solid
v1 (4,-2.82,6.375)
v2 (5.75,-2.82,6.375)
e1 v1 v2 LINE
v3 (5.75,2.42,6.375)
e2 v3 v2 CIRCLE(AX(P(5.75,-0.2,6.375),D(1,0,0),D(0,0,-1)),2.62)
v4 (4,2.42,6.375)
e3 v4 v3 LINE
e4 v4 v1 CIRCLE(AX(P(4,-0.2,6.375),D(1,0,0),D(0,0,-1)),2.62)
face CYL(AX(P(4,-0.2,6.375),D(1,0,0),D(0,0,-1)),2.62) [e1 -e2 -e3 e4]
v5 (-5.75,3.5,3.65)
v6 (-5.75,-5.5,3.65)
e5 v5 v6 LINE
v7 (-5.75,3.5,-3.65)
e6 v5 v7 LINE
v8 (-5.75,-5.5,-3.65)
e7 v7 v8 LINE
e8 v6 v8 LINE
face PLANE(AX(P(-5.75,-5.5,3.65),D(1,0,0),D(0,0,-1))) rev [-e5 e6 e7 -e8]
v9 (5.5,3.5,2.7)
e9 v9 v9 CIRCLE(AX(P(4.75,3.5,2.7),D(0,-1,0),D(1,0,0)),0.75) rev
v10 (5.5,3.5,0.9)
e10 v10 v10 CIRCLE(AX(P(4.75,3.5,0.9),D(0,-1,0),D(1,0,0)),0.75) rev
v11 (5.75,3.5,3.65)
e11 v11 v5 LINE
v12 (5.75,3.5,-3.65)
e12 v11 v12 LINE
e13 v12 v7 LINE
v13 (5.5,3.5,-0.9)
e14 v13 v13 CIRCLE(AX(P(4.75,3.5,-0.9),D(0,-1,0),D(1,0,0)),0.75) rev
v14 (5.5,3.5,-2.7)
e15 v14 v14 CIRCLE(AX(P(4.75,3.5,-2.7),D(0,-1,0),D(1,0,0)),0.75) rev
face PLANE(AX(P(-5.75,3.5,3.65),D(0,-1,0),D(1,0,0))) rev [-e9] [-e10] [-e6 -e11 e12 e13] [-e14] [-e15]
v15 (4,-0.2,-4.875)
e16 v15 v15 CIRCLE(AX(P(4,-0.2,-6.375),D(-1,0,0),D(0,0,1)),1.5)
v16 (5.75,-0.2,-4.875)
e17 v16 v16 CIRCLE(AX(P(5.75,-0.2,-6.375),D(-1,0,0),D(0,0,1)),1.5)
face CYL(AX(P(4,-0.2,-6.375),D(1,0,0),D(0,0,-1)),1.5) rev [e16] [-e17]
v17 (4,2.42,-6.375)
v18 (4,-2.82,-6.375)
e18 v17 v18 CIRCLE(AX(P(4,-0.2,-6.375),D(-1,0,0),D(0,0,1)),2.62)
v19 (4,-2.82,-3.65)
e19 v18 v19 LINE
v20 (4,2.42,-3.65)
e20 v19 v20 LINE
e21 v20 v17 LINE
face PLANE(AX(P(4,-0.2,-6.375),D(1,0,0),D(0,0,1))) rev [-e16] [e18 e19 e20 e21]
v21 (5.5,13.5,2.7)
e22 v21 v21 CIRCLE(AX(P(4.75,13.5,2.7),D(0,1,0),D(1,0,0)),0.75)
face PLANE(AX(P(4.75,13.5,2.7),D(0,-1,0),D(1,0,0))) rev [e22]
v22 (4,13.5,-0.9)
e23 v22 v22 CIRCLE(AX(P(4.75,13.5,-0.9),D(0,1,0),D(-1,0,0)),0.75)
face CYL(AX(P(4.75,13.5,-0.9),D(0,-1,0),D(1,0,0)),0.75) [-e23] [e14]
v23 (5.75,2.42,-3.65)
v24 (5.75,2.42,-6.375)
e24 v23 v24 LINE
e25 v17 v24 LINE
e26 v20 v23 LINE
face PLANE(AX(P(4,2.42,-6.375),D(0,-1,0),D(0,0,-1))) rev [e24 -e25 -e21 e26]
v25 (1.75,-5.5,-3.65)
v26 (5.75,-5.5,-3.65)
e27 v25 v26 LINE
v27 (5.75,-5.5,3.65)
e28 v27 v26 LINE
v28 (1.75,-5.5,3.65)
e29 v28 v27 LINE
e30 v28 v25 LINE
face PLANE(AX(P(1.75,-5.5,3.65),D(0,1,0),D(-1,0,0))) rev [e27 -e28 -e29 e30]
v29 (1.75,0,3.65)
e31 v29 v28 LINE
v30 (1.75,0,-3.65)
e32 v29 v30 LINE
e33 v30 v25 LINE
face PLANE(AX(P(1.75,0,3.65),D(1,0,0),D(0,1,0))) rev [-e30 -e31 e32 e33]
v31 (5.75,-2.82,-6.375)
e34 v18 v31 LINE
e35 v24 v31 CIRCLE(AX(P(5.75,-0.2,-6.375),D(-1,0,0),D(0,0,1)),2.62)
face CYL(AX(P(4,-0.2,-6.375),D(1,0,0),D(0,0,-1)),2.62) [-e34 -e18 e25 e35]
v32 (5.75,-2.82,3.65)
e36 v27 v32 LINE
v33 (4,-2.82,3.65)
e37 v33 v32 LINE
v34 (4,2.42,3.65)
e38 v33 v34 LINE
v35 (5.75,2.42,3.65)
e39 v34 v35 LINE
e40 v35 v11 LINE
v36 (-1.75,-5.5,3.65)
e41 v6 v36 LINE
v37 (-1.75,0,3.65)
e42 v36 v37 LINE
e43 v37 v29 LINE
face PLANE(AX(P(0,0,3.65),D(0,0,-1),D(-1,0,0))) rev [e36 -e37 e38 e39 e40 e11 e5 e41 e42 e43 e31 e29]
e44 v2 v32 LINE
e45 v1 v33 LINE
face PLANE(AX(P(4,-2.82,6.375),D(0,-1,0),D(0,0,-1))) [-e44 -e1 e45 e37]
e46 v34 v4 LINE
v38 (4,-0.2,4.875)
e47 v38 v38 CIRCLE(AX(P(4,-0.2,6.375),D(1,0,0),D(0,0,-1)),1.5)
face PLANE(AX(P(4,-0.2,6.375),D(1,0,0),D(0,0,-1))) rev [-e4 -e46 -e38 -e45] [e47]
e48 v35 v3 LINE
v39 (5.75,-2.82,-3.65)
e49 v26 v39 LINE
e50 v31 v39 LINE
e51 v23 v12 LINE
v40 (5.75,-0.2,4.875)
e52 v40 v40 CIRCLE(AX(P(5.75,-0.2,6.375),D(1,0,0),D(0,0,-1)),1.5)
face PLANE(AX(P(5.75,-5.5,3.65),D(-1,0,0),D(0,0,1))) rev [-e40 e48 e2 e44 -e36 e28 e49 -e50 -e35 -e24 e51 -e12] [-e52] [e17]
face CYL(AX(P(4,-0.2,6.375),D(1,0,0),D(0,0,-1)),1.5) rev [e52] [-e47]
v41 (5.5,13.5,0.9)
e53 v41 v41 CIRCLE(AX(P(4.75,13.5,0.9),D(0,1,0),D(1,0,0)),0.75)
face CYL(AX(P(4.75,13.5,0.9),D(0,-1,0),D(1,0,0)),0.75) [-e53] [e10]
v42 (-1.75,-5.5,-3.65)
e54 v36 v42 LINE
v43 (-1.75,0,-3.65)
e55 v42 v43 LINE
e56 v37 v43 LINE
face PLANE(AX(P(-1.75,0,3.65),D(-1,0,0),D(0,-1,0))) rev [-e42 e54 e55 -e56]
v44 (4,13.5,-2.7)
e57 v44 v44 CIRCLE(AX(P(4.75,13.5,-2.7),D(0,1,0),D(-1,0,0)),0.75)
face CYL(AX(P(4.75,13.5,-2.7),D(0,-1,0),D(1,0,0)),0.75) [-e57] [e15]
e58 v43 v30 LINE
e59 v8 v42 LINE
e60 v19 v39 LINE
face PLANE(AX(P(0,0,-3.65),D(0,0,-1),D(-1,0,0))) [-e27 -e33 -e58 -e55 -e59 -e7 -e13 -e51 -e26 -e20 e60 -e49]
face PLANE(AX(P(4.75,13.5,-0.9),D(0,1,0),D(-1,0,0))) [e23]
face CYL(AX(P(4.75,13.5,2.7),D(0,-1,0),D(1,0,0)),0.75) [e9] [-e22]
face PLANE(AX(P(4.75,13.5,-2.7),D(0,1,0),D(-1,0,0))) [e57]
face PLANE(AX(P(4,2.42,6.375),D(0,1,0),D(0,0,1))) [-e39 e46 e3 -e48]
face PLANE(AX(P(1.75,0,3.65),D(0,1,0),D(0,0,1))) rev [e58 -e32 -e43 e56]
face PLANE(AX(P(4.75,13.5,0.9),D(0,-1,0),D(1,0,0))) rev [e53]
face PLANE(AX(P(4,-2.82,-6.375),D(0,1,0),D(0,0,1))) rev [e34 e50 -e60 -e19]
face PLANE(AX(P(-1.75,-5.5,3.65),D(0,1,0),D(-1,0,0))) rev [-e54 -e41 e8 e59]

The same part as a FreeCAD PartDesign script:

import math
import FreeCAD as App
import Part
import Sketcher
Q = App.Units.Quantity

doc = App.newDocument("Part")
body = doc.addObject("PartDesign::Body", "Body")

# Sketch on XY plane
sketch1 = body.newObject("Sketcher::SketchObject", "Sketch")
sketch1.AttachmentSupport = (doc.getObject("XY_Plane"), [""])
sketch1.MapMode = "FlatFace"
sketch1.addGeometry(Part.LineSegment(App.Vector(-1.8, 0, 0), App.Vector(1.8, 0, 0)), False)
sketch1.addGeometry(Part.LineSegment(App.Vector(1.8, 0, 0), App.Vector(1.8, -5.5, 0)), False)
sketch1.addGeometry(Part.LineSegment(App.Vector(1.8, -5.5, 0), App.Vector(5.8, -5.5, 0)), False)
sketch1.addGeometry(Part.LineSegment(App.Vector(5.8, -5.5, 0), App.Vector(5.8, 3.5, 0)), False)
sketch1.addGeometry(Part.LineSegment(App.Vector(5.8, 3.5, 0), App.Vector(-5.8, 3.5, 0)), False)
sketch1.addGeometry(Part.LineSegment(App.Vector(-5.8, 3.5, 0), App.Vector(-5.8, -5.5, 0)), False)
sketch1.addGeometry(Part.LineSegment(App.Vector(-5.8, -5.5, 0), App.Vector(-1.8, -5.5, 0)), False)
sketch1.addGeometry(Part.LineSegment(App.Vector(-1.8, -5.5, 0), App.Vector(-1.8, 0, 0)), False)
sketch1.addConstraint(Sketcher.Constraint("Coincident", 0, 2, 1, 1))
sketch1.addConstraint(Sketcher.Constraint("Coincident", 1, 2, 2, 1))
sketch1.addConstraint(Sketcher.Constraint("Coincident", 2, 2, 3, 1))
sketch1.addConstraint(Sketcher.Constraint("Coincident", 3, 2, 4, 1))
sketch1.addConstraint(Sketcher.Constraint("Coincident", 4, 2, 5, 1))
sketch1.addConstraint(Sketcher.Constraint("Coincident", 5, 2, 6, 1))
sketch1.addConstraint(Sketcher.Constraint("Coincident", 6, 2, 7, 1))
sketch1.addConstraint(Sketcher.Constraint("Coincident", 7, 2, 0, 1))
sketch1.addConstraint(Sketcher.Constraint("Horizontal", 0))
sketch1.addConstraint(Sketcher.Constraint("Vertical", 1))
sketch1.addConstraint(Sketcher.Constraint("Horizontal", 2))
sketch1.addConstraint(Sketcher.Constraint("Vertical", 3))
sketch1.addConstraint(Sketcher.Constraint("Horizontal", 4))
sketch1.addConstraint(Sketcher.Constraint("Vertical", 5))
sketch1.addConstraint(Sketcher.Constraint("Horizontal", 6))
sketch1.addConstraint(Sketcher.Constraint("Vertical", 7))
sketch1.addConstraint(Sketcher.Constraint("Symmetric", 0, 2, 7, 2, -1, 1))
sketch1.addConstraint(Sketcher.Constraint("Symmetric", 2, 2, 5, 2, -2))
sketch1.addConstraint(Sketcher.Constraint("DistanceX", 2, 1, 2, 2, Q("4 mm")))
sketch1.addConstraint(Sketcher.Constraint("DistanceY", 3, 1, 3, 2, Q("9 mm")))
sketch1.addConstraint(Sketcher.Constraint("DistanceX", 0, 1, 0, 2, Q("3.5 mm")))
sketch1.addConstraint(Sketcher.Constraint("DistanceY", 1, 2, 1, 1, Q("5.5 mm")))
pad1 = body.newObject("PartDesign::Pad", "Pad")
pad1.Profile = sketch1
pad1.Length = 7.3
pad1.Midplane = True

# Sketch on YZ plane
sketch2 = body.newObject("Sketcher::SketchObject", "Sketch001")
sketch2.AttachmentSupport = (doc.getObject("YZ_Plane"), [""])
sketch2.MapMode = "FlatFace"
sketch2.AttachmentOffset = App.Placement(App.Vector(0, 0, 5.75), App.Rotation())
sketch2.addGeometry(Part.LineSegment(App.Vector(2.4, 3.6, 0), App.Vector(2.4, 6.4, 0)), False)
sketch2.addGeometry(Part.ArcOfCircle(Part.Circle(App.Vector(-0.2, 6.4, 0), App.Vector(0, 0, 1), 2.6), math.radians(0), math.radians(180)), False)
sketch2.addGeometry(Part.LineSegment(App.Vector(-2.8, 6.4, 0), App.Vector(-2.8, 3.6, 0)), False)
sketch2.addGeometry(Part.LineSegment(App.Vector(-2.8, 3.6, 0), App.Vector(2.4, 3.6, 0)), False)
sketch2.addGeometry(Part.Circle(App.Vector(-0.2, 6.4, 0), App.Vector(0, 0, 1), 1.5), False)
sketch2.addConstraint(Sketcher.Constraint("Tangent", 0, 2, 1, 1))
sketch2.addConstraint(Sketcher.Constraint("Tangent", 1, 2, 2, 1))
sketch2.addConstraint(Sketcher.Constraint("Coincident", 2, 2, 3, 1))
sketch2.addConstraint(Sketcher.Constraint("Coincident", 3, 2, 0, 1))
sketch2.addConstraint(Sketcher.Constraint("Vertical", 0))
sketch2.addConstraint(Sketcher.Constraint("Vertical", 2))
sketch2.addConstraint(Sketcher.Constraint("Horizontal", 3))
sketch2.addConstraint(Sketcher.Constraint("Coincident", 4, 3, 1, 3))
sketch2.addConstraint(Sketcher.Constraint("Diameter", 4, Q("3 mm")))
sketch2.addConstraint(Sketcher.Constraint("Radius", 1, Q("2.62 mm")))
sketch2.addConstraint(Sketcher.Constraint("DistanceX", 1, 3, -1, 1, Q("0.2 mm")))
sketch2.addConstraint(Sketcher.Constraint("DistanceY", 0, 1, 0, 2, Q("2.725 mm")))
sketch2.addConstraint(Sketcher.Constraint("DistanceY", -1, 1, 2, 2, Q("3.65 mm")))
pad2 = body.newObject("PartDesign::Pad", "Pad001")
pad2.Profile = sketch2
pad2.Length = 1.75
pad2.Reversed = True
doc.recompute()

mirrored = body.newObject("PartDesign::Mirrored", "Mirrored")
mirrored.Originals = [pad2]
mirrored.MirrorPlane = (doc.getObject("XY_Plane"), [""])
body.Tip = mirrored

# Sketch on XZ plane
sketch3 = body.newObject("Sketcher::SketchObject", "Sketch002")
sketch3.AttachmentSupport = (doc.getObject("XZ_Plane"), [""])
sketch3.MapMode = "FlatFace"
sketch3.AttachmentOffset = App.Placement(App.Vector(0, 0, -3.5), App.Rotation())
sketch3.addGeometry(Part.Circle(App.Vector(4.8, -2.7, 0), App.Vector(0, 0, 1), 0.8), False)
sketch3.addGeometry(Part.Circle(App.Vector(4.8, -0.9, 0), App.Vector(0, 0, 1), 0.8), False)
sketch3.addGeometry(Part.Circle(App.Vector(4.8, 0.9, 0), App.Vector(0, 0, 1), 0.8), False)
sketch3.addGeometry(Part.Circle(App.Vector(4.8, 2.7, 0), App.Vector(0, 0, 1), 0.8), False)
sketch3.addConstraint(Sketcher.Constraint("Equal", 0, 1))
sketch3.addConstraint(Sketcher.Constraint("Equal", 1, 2))
sketch3.addConstraint(Sketcher.Constraint("Equal", 2, 3))
sketch3.addConstraint(Sketcher.Constraint("Symmetric", 1, 3, 2, 3, -1))
sketch3.addConstraint(Sketcher.Constraint("Symmetric", 0, 3, 3, 3, -1))
sketch3.addConstraint(Sketcher.Constraint("Vertical", 0, 3, 1, 3))
sketch3.addConstraint(Sketcher.Constraint("Diameter", 0, Q("1.5 mm")))
sketch3.addConstraint(Sketcher.Constraint("DistanceY", 0, 3, -1, 1, Q("2.7 mm")))
sketch3.addConstraint(Sketcher.Constraint("DistanceY", 1, 3, -1, 1, Q("0.9 mm")))
sketch3.addConstraint(Sketcher.Constraint("DistanceX", -1, 1, 0, 3, Q("4.75 mm")))
pad3 = body.newObject("PartDesign::Pad", "Pad002")
pad3.Profile = sketch3
pad3.Length = 10
pad3.Reversed = True

doc.recompute()
